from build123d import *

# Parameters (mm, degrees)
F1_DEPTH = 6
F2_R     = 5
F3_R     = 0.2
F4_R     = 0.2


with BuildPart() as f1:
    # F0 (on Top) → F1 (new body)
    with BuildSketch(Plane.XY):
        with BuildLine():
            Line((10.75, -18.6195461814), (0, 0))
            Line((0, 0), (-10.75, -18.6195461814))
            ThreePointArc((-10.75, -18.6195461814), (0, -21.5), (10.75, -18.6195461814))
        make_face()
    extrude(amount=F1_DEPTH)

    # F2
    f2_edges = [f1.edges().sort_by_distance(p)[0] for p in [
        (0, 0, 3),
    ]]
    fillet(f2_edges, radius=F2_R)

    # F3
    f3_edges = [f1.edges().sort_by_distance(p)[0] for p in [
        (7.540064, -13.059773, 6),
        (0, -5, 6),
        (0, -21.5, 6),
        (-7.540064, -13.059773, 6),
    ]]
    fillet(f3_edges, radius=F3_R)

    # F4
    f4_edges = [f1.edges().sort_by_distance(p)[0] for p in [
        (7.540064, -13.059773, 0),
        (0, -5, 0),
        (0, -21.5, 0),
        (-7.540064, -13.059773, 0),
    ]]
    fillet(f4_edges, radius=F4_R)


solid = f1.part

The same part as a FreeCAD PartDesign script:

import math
import FreeCAD as App
import Part
import Sketcher

V = App.Vector
Q = App.Units.Quantity


def edges_at(feature, points):
    """Names of the edges that pass closest to the given points."""
    edges = feature.Shape.Edges
    near = lambda p: min(range(len(edges)), key=lambda i: edges[i].distToShape(Part.Vertex(*p))[0])
    return sorted({f"Edge{near(p) + 1}" for p in points})

doc = App.newDocument("Part")
params = doc.addObject("Spreadsheet::Sheet", "Params")
for row, (alias, value) in enumerate([
    ("sketch1_radius", "21.5 mm"),
    ("pad1_length", "6 mm"),
    ("fillet_radius", "5 mm"),
    ("fillet2_radius", "0.2 mm"),
    ("fillet3_radius", "0.2 mm"),
], start=1):
    params.set(f"A{row}", alias)
    params.set(f"B{row}", "=" + value)
    params.setAlias(f"B{row}", alias)

body = doc.addObject("PartDesign::Body", "Body")

# Sketch on XY plane
sketch1 = body.newObject("Sketcher::SketchObject", "Sketch")
sketch1.AttachmentSupport = (doc.getObject("XY_Plane"), [""])
sketch1.MapMode = "FlatFace"
sketch1.addGeometry([
    Part.LineSegment(V(10.75, -18.619546, 0), V(0, 0, 0)),
    Part.LineSegment(V(0, 0, 0), V(-10.75, -18.619546, 0)),
    Part.ArcOfCircle(Part.Circle(V(0, 0, 0), V(0, 0, 1), 21.5), math.radians(-120), math.radians(-60)),
], False)
sketch1.addConstraint([
    Sketcher.Constraint("Coincident", 0, 2, 1, 1),
    Sketcher.Constraint("Coincident", 1, 2, 2, 1),
    Sketcher.Constraint("Coincident", 2, 2, 0, 1),
    Sketcher.Constraint("Coincident", 2, 3, -1, 1),
    Sketcher.Constraint("Coincident", 0, 2, -1, 1),
    Sketcher.Constraint("Horizontal", 1, 2, 2, 2),
    Sketcher.Constraint("Radius", 2, 21.5),
    Sketcher.Constraint("Angle", 0, Q("120 deg")),
])
sketch1.setExpression("Constraints[6]", "Params.sketch1_radius")
pad1 = body.newObject("PartDesign::Pad", "Pad")
pad1.Profile = sketch1
pad1.setExpression("Length", "Params.pad1_length")
doc.recompute()

fillet = body.newObject("PartDesign::Fillet", "Fillet")
fillet.Base = (pad1, edges_at(pad1, [(0, 0, 3)]))
fillet.setExpression("Radius", "Params.fillet_radius")
doc.recompute()

fillet2 = body.newObject("PartDesign::Fillet", "Fillet001")
fillet2.Base = (fillet, edges_at(fillet, [
    (7.54, -13.06, 6),
    (0, -5, 6),
    (0, -21.5, 6),
    (-7.54, -13.06, 6),
]))
fillet2.setExpression("Radius", "Params.fillet2_radius")
doc.recompute()

fillet3 = body.newObject("PartDesign::Fillet", "Fillet002")
fillet3.Base = (fillet2, edges_at(fillet2, [
    (7.54, -13.06, 0),
    (0, -5, 0),
    (0, -21.5, 0),
    (-7.54, -13.06, 0),
]))
fillet3.setExpression("Radius", "Params.fillet3_radius")

doc.recompute()
